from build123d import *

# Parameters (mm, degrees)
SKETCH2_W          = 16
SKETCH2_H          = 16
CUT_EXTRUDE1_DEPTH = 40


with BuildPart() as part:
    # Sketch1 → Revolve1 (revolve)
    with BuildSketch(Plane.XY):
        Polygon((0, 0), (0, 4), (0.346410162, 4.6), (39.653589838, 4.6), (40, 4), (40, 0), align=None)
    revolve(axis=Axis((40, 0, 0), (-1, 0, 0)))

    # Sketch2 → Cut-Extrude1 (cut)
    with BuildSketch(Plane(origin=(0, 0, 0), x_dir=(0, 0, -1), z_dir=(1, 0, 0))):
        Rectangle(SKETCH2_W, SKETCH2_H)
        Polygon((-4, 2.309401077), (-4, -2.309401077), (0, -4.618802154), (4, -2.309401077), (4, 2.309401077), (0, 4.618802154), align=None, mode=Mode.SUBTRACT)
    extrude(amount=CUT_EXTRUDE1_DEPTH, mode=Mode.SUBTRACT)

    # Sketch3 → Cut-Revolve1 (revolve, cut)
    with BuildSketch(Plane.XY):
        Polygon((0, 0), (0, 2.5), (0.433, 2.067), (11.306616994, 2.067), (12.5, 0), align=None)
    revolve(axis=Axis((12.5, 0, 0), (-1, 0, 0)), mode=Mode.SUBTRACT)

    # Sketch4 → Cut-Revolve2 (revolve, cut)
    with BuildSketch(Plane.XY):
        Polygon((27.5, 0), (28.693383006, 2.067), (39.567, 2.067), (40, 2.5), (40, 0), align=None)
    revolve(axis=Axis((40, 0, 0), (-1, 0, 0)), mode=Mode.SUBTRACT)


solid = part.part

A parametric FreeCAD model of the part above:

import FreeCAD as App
import Part
import Sketcher
Q = App.Units.Quantity

doc = App.newDocument("Part")
params = doc.addObject("Spreadsheet::Sheet", "Params")
for row, (alias, value) in enumerate([
    ("sketch1_width", "40 mm"),
    ("sketch1_height", "4 mm"),
    ("revolution_angle", "360 deg"),
    ("sketch2_width", "16 mm"),
    ("pocket1_length", "40 mm"),
    ("sketch3_width", "12.5 mm"),
    ("sketch3_height", "2.5 mm"),
    ("groove_angle", "360 deg"),
    ("sketch4_width", "12.5 mm"),
    ("sketch4_height", "2.5 mm"),
    ("groove2_angle", "360 deg"),
], start=1):
    params.set(f"A{row}", alias)
    params.set(f"B{row}", "=" + value)
    params.setAlias(f"B{row}", alias)

body = doc.addObject("PartDesign::Body", "Body")

# Sketch on XY plane
sketch1 = body.newObject("Sketcher::SketchObject", "Sketch")
sketch1.AttachmentSupport = (doc.getObject("XY_Plane"), [""])
sketch1.MapMode = "FlatFace"
sketch1.addGeometry([
    Part.LineSegment(App.Vector(0, 4, 0), App.Vector(0, 0, 0)),  # 0
    Part.LineSegment(App.Vector(0, 0, 0), App.Vector(40, 0, 0)),  # 1
    Part.LineSegment(App.Vector(40, 0, 0), App.Vector(40, 4, 0)),  # 2
    Part.LineSegment(App.Vector(40, 4, 0), App.Vector(39.7, 4.6, 0)),  # 3
    Part.LineSegment(App.Vector(39.7, 4.6, 0), App.Vector(0.3, 4.6, 0)),  # 4
    Part.LineSegment(App.Vector(0.3, 4.6, 0), App.Vector(0, 4, 0)),  # 5
], False)
sketch1.addConstraint([
    Sketcher.Constraint("Coincident", 0, 2, 1, 1),
    Sketcher.Constraint("Coincident", 1, 2, 2, 1),
    Sketcher.Constraint("Coincident", 2, 2, 3, 1),
    Sketcher.Constraint("Coincident", 3, 2, 4, 1),
    Sketcher.Constraint("Coincident", 4, 2, 5, 1),
    Sketcher.Constraint("Coincident", 5, 2, 0, 1),
    Sketcher.Constraint("Vertical", 0),
    Sketcher.Constraint("Horizontal", 1),
    Sketcher.Constraint("Vertical", 2),
    Sketcher.Constraint("Horizontal", 4),
    Sketcher.Constraint("Coincident", 0, 2, -1, 1),
    Sketcher.Constraint("Horizontal", 2, 2, 5, 2),
    Sketcher.Constraint("Equal", 3, 5),
    Sketcher.Constraint("DistanceX", 1, 1, 1, 2, 40.0),
    Sketcher.Constraint("DistanceY", 0, 2, 0, 1, 4.0),
    Sketcher.Constraint("Angle", 3, Q("120 deg")),
    Sketcher.Constraint("DistanceY", -1, 1, 3, 2, 4.6),
])
sketch1.setExpression("Constraints[13]", "Params.sketch1_width")
sketch1.setExpression("Constraints[14]", "Params.sketch1_height")
revolution = body.newObject("PartDesign::Revolution", "Revolution")
revolution.Profile = sketch1
revolution.ReferenceAxis = (sketch1, ["H_Axis"])
revolution.setExpression("Angle", "Params.revolution_angle")

# Sketch on YZ plane
sketch2 = body.newObject("Sketcher::SketchObject", "Sketch001")
sketch2.AttachmentSupport = (doc.getObject("YZ_Plane"), [""])
sketch2.MapMode = "FlatFace"
sketch2.addGeometry([
    Part.LineSegment(App.Vector(8, 8, 0), App.Vector(-8, 8, 0)),  # 0
    Part.LineSegment(App.Vector(-8, 8, 0), App.Vector(-8, -8, 0)),  # 1
    Part.LineSegment(App.Vector(-8, -8, 0), App.Vector(8, -8, 0)),  # 2
    Part.LineSegment(App.Vector(8, -8, 0), App.Vector(8, 8, 0)),  # 3
    Part.LineSegment(App.Vector(-2.3, 4, 0), App.Vector(2.3, 4, 0)),  # 4
    Part.LineSegment(App.Vector(2.3, 4, 0), App.Vector(4.6, 0, 0)),  # 5
    Part.LineSegment(App.Vector(4.6, 0, 0), App.Vector(2.3, -4, 0)),  # 6
    Part.LineSegment(App.Vector(2.3, -4, 0), App.Vector(-2.3, -4, 0)),  # 7
    Part.LineSegment(App.Vector(-2.3, -4, 0), App.Vector(-4.6, 0, 0)),  # 8
    Part.LineSegment(App.Vector(-4.6, 0, 0), App.Vector(-2.3, 4, 0)),  # 9
], False)
sketch2.addConstraint([
    Sketcher.Constraint("Coincident", 0, 2, 1, 1),
    Sketcher.Constraint("Coincident", 1, 2, 2, 1),
    Sketcher.Constraint("Coincident", 2, 2, 3, 1),
    Sketcher.Constraint("Coincident", 3, 2, 0, 1),
    Sketcher.Constraint("Coincident", 4, 2, 5, 1),
    Sketcher.Constraint("Coincident", 5, 2, 6, 1),
    Sketcher.Constraint("Coincident", 6, 2, 7, 1),
    Sketcher.Constraint("Coincident", 7, 2, 8, 1),
    Sketcher.Constraint("Coincident", 8, 2, 9, 1),
    Sketcher.Constraint("Coincident", 9, 2, 4, 1),
    Sketcher.Constraint("Horizontal", 0),
    Sketcher.Constraint("Vertical", 1),
    Sketcher.Constraint("Horizontal", 2),
    Sketcher.Constraint("Vertical", 3),
    Sketcher.Constraint("Horizontal", 4),
    Sketcher.Constraint("Horizontal", 7),
    Sketcher.Constraint("Symmetric", 0, 2, 2, 2, -1, 1),
    Sketcher.Constraint("Symmetric", 4, 2, 7, 2, -1, 1),
    Sketcher.Constraint("Symmetric", 5, 2, 8, 2, -1, 1),
    Sketcher.Constraint("PointOnObject", 5, 2, -1),
    Sketcher.Constraint("Parallel", 6, 9),
    Sketcher.Constraint("Vertical", 4, 2, 6, 2),
    Sketcher.Constraint("Equal", 2, 1),
    Sketcher.Constraint("DistanceX", 0, 2, 0, 1, 16.0),
    Sketcher.Constraint("Angle", 5, Q("-60 deg")),
    Sketcher.Constraint("DistanceY", -1, 1, 4, 2, 4.0),
    Sketcher.Constraint("DistanceX", -1, 1, 4, 2, 2.309401),
])
sketch2.setExpression("Constraints[23]", "Params.sketch2_width")
pocket1 = body.newObject("PartDesign::Pocket", "Pocket")
pocket1.Profile = sketch2
pocket1.setExpression("Length", "Params.pocket1_length")
pocket1.Reversed = True

# Sketch on XY plane
sketch3 = body.newObject("Sketcher::SketchObject", "Sketch002")
sketch3.AttachmentSupport = (doc.getObject("XY_Plane"), [""])
sketch3.MapMode = "FlatFace"
sketch3.addGeometry([
    Part.LineSegment(App.Vector(0, 2.5, 0), App.Vector(0, 0, 0)),  # 0
    Part.LineSegment(App.Vector(0, 0, 0), App.Vector(12.5, 0, 0)),  # 1
    Part.LineSegment(App.Vector(12.5, 0, 0), App.Vector(11.3, 2.1, 0)),  # 2
    Part.LineSegment(App.Vector(11.3, 2.1, 0), App.Vector(0.4, 2.1, 0)),  # 3
    Part.LineSegment(App.Vector(0.4, 2.1, 0), App.Vector(0, 2.5, 0)),  # 4
], False)
sketch3.addConstraint([
    Sketcher.Constraint("Coincident", 0, 2, 1, 1),
    Sketcher.Constraint("Coincident", 1, 2, 2, 1),
    Sketcher.Constraint("Coincident", 2, 2, 3, 1),
    Sketcher.Constraint("Coincident", 3, 2, 4, 1),
    Sketcher.Constraint("Coincident", 4, 2, 0, 1),
    Sketcher.Constraint("Vertical", 0),
    Sketcher.Constraint("Horizontal", 1),
    Sketcher.Constraint("Horizontal", 3),
    Sketcher.Constraint("Coincident", 0, 2, -1, 1),
    Sketcher.Constraint("Angle", 2, Q("120 deg")),
    Sketcher.Constraint("Angle", 4, Q("135 deg")),
    Sketcher.Constraint("DistanceX", 1, 1, 1, 2, 12.5),
    Sketcher.Constraint("DistanceY", 0, 2, 0, 1, 2.5),
    Sketcher.Constraint("DistanceY", -1, 1, 2, 2, 2.067),
])
sketch3.setExpression("Constraints[11]", "Params.sketch3_width")
sketch3.setExpression("Constraints[12]", "Params.sketch3_height")
groove = body.newObject("PartDesign::Groove", "Groove")
groove.Profile = sketch3
groove.ReferenceAxis = (sketch3, ["H_Axis"])
groove.setExpression("Angle", "Params.groove_angle")

# Sketch on XY plane
sketch4 = body.newObject("Sketcher::SketchObject", "Sketch003")
sketch4.AttachmentSupport = (doc.getObject("XY_Plane"), [""])
sketch4.MapMode = "FlatFace"
sketch4.addGeometry([
    Part.LineSegment(App.Vector(28.7, 2.1, 0), App.Vector(27.5, 0, 0)),  # 0
    Part.LineSegment(App.Vector(27.5, 0, 0), App.Vector(40, 0, 0)),  # 1
    Part.LineSegment(App.Vector(40, 0, 0), App.Vector(40, 2.5, 0)),  # 2
    Part.LineSegment(App.Vector(40, 2.5, 0), App.Vector(39.6, 2.1, 0)),  # 3
    Part.LineSegment(App.Vector(39.6, 2.1, 0), App.Vector(28.7, 2.1, 0)),  # 4
], False)
sketch4.addConstraint([
    Sketcher.Constraint("Coincident", 0, 2, 1, 1),
    Sketcher.Constraint("Coincident", 1, 2, 2, 1),
    Sketcher.Constraint("Coincident", 2, 2, 3, 1),
    Sketcher.Constraint("Coincident", 3, 2, 4, 1),
    Sketcher.Constraint("Coincident", 4, 2, 0, 1),
    Sketcher.Constraint("Horizontal", 1),
    Sketcher.Constraint("Vertical", 2),
    Sketcher.Constraint("Horizontal", 4),
    Sketcher.Constraint("PointOnObject", 0, 2, -1),
    Sketcher.Constraint("Angle", 0, Q("-120 deg")),
    Sketcher.Constraint("Angle", 3, Q("-135 deg")),
    Sketcher.Constraint("DistanceX", 1, 1, 1, 2, 12.5),
    Sketcher.Constraint("DistanceY", 2, 1, 2, 2, 2.5),
    Sketcher.Constraint("DistanceX", -1, 1, 1, 2, 40.0),
    Sketcher.Constraint("DistanceX", -1, 1, 3, 2, 39.567),
])
sketch4.setExpression("Constraints[11]", "Params.sketch4_width")
sketch4.setExpression("Constraints[12]", "Params.sketch4_height")
groove2 = body.newObject("PartDesign::Groove", "Groove001")
groove2.Profile = sketch4
groove2.ReferenceAxis = (sketch4, ["H_Axis"])
groove2.setExpression("Angle", "Params.groove2_angle")

doc.recompute()
